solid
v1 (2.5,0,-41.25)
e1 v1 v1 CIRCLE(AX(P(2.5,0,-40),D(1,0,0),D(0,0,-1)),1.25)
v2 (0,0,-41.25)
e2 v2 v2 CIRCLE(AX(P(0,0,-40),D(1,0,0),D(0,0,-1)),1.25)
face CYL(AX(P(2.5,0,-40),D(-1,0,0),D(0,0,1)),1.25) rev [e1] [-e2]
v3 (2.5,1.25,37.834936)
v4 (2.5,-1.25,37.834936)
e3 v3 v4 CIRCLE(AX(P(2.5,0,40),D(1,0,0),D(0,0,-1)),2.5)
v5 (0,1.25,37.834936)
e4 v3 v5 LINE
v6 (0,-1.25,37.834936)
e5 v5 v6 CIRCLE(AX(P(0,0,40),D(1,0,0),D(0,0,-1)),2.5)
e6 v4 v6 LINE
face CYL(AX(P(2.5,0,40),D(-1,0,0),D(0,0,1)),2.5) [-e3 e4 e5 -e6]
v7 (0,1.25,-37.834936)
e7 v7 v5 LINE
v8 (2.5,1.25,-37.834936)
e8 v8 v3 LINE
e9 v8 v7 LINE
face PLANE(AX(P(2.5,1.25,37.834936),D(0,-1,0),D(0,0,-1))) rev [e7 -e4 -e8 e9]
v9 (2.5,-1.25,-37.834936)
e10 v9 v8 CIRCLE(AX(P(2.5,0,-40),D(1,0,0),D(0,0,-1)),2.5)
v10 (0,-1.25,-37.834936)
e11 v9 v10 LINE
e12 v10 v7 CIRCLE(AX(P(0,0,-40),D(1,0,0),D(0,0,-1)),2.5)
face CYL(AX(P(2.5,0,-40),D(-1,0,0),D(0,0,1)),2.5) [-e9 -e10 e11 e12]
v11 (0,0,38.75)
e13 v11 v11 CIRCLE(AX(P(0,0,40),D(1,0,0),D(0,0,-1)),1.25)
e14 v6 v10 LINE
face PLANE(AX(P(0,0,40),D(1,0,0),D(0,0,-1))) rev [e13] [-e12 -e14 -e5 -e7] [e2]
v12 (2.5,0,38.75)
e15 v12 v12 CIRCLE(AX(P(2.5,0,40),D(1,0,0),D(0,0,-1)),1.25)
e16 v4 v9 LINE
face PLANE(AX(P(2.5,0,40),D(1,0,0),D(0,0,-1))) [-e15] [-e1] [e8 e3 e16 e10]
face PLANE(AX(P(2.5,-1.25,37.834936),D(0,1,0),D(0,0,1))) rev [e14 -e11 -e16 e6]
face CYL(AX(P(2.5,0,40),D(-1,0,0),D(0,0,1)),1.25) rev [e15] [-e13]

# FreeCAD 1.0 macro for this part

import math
import FreeCAD as App
import Part
import Sketcher

V = App.Vector

doc = App.newDocument("Part")
body = doc.addObject("PartDesign::Body", "Body")

sketch1 = body.newObject("Sketcher::SketchObject", "Sketch")
sketch1.AttachmentSupport = (doc.getObject("YZ_Plane"), [""])
sketch1.MapMode = "FlatFace"
sketch1.addGeometry(Part.LineSegment(V(1.2, -37.8, 0), V(1.2, 37.8, 0)), False)
sketch1.addGeometry(Part.ArcOfCircle(Part.Circle(V(0, 40, 0), V(0, 0, 1), 2.5), math.radians(-60), math.radians(240)), False)
sketch1.addGeometry(Part.LineSegment(V(-1.2, 37.8, 0), V(-1.2, -37.8, 0)), False)
sketch1.addGeometry(Part.ArcOfCircle(Part.Circle(V(0, -40, 0), V(0, 0, 1), 2.5), math.radians(120), math.radians(420)), False)
sketch1.addGeometry(Part.Circle(V(0, -40, 0), V(0, 0, 1), 1.2), False)
sketch1.addGeometry(Part.Circle(V(0, 40, 0), V(0, 0, 1), 1.2), False)
sketch1.addConstraint(Sketcher.Constraint("Coincident", 0, 2, 1, 1))
sketch1.addConstraint(Sketcher.Constraint("Coincident", 1, 2, 2, 1))
sketch1.addConstraint(Sketcher.Constraint("Coincident", 2, 2, 3, 1))
sketch1.addConstraint(Sketcher.Constraint("Coincident", 3, 2, 0, 1))
sketch1.addConstraint(Sketcher.Constraint("Vertical", 0))
sketch1.addConstraint(Sketcher.Constraint("Vertical", 2))
sketch1.addConstraint(Sketcher.Constraint("Coincident", 4, 3, 3, 3))
sketch1.addConstraint(Sketcher.Constraint("Coincident", 5, 3, 1, 3))
sketch1.addConstraint(Sketcher.Constraint("Equal", 1, 3))
sketch1.addConstraint(Sketcher.Constraint("Equal", 4, 5))
sketch1.addConstraint(Sketcher.Constraint("Symmetric", 1, 3, 3, 3, -1, 1))
sketch1.addConstraint(Sketcher.Constraint("Symmetric", 0, 2, 1, 2, -2))
sketch1.addConstraint(Sketcher.Constraint("Diameter", 4, 2.5))
sketch1.addConstraint(Sketcher.Constraint("Radius", 1, 2.5))
sketch1.addConstraint(Sketcher.Constraint("DistanceY", -1, 1, 1, 3, 40.0))
sketch1.addConstraint(Sketcher.Constraint("DistanceX", 1, 2, 0, 2, 2.5))
pad1 = body.newObject("PartDesign::Pad", "Pad")
pad1.Profile = sketch1
pad1.Length = 2.5

doc.recompute()
